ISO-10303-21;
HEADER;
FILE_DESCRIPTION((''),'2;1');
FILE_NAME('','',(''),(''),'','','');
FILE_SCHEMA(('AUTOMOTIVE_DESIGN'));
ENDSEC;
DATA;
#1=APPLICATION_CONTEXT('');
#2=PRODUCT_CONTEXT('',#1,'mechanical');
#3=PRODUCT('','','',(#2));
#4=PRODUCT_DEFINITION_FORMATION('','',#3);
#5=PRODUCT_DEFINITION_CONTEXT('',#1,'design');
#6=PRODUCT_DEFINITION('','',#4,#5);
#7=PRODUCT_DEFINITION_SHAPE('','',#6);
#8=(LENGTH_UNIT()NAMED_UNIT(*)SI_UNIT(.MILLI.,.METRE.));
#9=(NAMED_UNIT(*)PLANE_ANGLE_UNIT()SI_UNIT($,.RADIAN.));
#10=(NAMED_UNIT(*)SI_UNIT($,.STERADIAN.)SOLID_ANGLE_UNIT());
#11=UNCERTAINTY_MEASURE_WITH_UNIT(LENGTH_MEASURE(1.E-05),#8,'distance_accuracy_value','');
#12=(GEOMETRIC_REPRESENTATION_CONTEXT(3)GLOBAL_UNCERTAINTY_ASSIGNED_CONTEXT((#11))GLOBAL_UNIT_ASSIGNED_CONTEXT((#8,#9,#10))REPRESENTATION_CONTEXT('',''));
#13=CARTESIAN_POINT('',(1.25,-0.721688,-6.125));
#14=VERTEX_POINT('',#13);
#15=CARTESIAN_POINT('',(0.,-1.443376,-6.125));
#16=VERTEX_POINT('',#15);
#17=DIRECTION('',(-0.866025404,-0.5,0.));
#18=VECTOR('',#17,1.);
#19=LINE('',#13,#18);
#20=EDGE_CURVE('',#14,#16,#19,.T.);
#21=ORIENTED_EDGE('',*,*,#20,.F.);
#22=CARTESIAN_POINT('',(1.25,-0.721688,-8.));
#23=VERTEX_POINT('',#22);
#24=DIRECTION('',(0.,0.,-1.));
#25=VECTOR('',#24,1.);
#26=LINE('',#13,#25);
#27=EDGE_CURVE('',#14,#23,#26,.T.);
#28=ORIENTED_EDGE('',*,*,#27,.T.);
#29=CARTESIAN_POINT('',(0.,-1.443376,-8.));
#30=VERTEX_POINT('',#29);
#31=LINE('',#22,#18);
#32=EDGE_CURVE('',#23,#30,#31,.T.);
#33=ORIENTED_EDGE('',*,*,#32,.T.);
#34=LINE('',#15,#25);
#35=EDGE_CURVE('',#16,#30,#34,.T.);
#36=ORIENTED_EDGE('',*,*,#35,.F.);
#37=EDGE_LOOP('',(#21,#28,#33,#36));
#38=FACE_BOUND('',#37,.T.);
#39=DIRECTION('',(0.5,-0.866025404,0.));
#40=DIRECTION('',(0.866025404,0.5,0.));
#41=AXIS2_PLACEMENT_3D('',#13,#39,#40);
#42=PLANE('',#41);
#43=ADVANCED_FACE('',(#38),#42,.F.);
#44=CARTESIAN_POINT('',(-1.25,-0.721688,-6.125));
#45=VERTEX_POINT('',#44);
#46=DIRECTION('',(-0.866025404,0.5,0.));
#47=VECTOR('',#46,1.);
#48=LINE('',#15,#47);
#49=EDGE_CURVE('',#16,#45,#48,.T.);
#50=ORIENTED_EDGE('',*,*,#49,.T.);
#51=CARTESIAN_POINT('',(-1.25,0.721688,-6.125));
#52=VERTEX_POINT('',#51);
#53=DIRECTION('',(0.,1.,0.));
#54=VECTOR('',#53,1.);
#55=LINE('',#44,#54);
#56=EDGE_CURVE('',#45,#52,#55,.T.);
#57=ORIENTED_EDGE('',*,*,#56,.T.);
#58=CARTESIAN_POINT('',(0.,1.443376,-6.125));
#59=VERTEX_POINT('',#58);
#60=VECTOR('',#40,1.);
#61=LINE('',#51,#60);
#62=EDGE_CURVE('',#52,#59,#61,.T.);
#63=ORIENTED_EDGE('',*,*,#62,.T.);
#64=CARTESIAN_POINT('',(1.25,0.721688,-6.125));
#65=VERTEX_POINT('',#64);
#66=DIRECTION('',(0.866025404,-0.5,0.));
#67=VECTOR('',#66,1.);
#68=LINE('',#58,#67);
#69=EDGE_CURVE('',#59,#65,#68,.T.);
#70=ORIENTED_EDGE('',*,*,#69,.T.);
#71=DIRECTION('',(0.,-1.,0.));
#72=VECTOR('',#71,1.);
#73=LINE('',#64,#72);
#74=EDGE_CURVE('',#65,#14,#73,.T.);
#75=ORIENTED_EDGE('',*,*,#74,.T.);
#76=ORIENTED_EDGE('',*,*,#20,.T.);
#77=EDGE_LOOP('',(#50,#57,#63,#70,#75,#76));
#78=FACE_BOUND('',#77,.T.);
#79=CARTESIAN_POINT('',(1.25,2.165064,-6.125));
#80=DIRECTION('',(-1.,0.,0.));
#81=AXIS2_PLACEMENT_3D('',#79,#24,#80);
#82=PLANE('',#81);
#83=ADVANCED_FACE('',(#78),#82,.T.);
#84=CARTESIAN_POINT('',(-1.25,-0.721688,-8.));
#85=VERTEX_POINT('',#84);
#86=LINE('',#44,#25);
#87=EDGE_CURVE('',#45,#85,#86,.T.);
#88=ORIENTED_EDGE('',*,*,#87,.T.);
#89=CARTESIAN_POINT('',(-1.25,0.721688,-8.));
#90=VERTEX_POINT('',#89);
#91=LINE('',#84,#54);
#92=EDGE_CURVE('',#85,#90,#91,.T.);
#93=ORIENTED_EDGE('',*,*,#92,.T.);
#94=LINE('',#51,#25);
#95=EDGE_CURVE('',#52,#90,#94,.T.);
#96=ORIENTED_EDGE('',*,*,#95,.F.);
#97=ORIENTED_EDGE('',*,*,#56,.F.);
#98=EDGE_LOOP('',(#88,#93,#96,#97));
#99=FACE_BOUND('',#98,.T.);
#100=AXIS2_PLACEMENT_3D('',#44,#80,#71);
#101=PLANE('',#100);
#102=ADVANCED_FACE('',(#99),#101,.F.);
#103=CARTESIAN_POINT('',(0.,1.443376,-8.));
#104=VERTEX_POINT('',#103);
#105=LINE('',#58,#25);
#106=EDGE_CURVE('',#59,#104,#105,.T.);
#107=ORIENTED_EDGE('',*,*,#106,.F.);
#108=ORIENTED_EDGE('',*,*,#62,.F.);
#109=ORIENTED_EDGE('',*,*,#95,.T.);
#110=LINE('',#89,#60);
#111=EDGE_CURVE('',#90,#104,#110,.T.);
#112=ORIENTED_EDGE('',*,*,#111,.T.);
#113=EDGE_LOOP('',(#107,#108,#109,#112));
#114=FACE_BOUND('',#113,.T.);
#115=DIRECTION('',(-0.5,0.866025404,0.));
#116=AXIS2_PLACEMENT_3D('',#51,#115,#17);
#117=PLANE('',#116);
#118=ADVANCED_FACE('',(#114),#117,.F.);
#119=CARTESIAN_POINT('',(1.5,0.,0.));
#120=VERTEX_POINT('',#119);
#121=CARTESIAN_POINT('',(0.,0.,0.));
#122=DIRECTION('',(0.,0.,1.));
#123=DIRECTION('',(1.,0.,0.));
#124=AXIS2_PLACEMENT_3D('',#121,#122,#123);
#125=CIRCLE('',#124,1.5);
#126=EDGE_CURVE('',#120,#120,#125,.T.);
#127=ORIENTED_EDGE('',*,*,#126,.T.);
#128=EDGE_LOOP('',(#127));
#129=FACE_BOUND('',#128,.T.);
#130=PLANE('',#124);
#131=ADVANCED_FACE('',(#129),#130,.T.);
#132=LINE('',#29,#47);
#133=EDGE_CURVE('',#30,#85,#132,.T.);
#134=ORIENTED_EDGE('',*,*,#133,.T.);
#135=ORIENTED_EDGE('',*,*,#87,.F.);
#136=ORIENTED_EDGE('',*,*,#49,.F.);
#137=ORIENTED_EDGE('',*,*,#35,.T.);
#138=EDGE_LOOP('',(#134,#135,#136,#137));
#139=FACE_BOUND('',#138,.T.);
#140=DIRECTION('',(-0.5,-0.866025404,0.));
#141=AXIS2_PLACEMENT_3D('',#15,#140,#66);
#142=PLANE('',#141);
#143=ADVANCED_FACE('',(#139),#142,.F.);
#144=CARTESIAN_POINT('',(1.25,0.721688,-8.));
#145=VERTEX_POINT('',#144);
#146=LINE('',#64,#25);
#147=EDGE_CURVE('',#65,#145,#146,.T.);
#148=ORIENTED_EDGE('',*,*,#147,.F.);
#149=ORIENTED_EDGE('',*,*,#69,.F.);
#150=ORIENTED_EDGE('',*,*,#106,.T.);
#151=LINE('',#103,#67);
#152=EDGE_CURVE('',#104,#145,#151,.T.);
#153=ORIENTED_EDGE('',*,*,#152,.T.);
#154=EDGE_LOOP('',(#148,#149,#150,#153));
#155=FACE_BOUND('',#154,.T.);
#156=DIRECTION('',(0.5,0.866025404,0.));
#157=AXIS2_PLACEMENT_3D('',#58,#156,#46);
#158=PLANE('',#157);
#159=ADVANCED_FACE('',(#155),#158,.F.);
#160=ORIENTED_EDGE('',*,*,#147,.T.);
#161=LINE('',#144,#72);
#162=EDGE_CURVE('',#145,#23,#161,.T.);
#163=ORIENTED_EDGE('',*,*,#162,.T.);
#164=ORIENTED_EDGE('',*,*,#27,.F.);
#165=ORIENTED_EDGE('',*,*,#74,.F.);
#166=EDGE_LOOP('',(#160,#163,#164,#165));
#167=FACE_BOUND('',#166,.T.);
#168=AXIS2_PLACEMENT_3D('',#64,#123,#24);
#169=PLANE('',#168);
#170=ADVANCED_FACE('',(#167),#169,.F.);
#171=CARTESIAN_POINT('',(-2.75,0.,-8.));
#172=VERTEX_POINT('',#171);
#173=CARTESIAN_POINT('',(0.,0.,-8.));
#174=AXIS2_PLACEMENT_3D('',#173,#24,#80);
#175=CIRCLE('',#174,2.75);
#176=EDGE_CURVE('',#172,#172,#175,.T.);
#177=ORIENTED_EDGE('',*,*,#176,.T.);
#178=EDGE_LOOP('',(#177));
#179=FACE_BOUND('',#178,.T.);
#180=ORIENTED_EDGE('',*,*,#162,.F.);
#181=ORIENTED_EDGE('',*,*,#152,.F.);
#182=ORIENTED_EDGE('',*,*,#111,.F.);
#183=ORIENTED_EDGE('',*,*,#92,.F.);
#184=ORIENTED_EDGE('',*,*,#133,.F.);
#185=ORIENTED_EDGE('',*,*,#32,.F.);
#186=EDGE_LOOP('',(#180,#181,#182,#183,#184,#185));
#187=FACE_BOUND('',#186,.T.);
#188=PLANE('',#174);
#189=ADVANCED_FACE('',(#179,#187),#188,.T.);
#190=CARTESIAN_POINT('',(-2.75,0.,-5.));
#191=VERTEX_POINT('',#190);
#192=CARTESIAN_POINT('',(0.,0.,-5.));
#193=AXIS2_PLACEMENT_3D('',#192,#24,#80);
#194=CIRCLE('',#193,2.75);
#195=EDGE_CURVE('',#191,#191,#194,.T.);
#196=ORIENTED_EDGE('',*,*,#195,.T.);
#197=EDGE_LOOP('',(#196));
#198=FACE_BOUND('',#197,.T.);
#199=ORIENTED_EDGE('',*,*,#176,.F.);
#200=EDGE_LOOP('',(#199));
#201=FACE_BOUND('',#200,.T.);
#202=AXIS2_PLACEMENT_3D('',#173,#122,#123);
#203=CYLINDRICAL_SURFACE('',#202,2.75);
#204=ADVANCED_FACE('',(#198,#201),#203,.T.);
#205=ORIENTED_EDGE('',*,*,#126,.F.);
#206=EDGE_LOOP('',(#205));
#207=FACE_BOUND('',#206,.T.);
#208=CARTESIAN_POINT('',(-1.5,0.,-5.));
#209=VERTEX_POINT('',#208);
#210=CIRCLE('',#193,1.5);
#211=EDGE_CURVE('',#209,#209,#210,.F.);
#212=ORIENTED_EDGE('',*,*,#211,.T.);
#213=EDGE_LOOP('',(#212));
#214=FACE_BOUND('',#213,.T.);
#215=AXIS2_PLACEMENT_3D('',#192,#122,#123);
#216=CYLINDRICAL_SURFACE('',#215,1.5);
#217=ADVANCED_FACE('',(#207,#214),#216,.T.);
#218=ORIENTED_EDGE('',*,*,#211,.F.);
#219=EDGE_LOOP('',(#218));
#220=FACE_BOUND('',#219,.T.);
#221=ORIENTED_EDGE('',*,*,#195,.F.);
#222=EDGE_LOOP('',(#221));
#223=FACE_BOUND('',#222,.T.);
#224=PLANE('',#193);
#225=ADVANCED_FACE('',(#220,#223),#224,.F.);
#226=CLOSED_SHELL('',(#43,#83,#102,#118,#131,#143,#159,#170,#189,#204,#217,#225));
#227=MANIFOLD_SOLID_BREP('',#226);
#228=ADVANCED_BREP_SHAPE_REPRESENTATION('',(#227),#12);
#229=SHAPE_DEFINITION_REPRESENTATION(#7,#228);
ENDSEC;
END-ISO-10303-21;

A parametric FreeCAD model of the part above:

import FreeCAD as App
import Part
import Sketcher

V = App.Vector
Q = App.Units.Quantity

doc = App.newDocument("Part")
body = doc.addObject("PartDesign::Body", "Body")

# Sketch on XY plane
sketch1 = body.newObject("Sketcher::SketchObject", "Sketch")
sketch1.AttachmentSupport = (doc.getObject("XY_Plane"), [""])
sketch1.MapMode = "FlatFace"
sketch1.addGeometry(Part.Circle(V(0, 0, 0), V(0, 0, 1), 1.5), False)
sketch1.addConstraint(Sketcher.Constraint("Coincident", 0, 3, -1, 1))
sketch1.addConstraint(Sketcher.Constraint("Diameter", 0, 3.0))
pad1 = body.newObject("PartDesign::Pad", "Pad")
pad1.Profile = sketch1
pad1.Length = 5
pad1.Reversed = True

# Sketch on XY plane
sketch2 = body.newObject("Sketcher::SketchObject", "Sketch001")
sketch2.AttachmentSupport = (doc.getObject("XY_Plane"), [""])
sketch2.MapMode = "FlatFace"
sketch2.AttachmentOffset = App.Placement(V(0, 0, -5), App.Rotation())
sketch2.addGeometry(Part.Circle(V(0, 0, 0), V(0, 0, 1), 2.8), False)
sketch2.addConstraint(Sketcher.Constraint("Coincident", 0, 3, -1, 1))
sketch2.addConstraint(Sketcher.Constraint("Diameter", 0, 5.5))
pad2 = body.newObject("PartDesign::Pad", "Pad001")
pad2.Profile = sketch2
pad2.Length = 3
pad2.Reversed = True

# Sketch on XY plane
sketch3 = body.newObject("Sketcher::SketchObject", "Sketch002")
sketch3.AttachmentSupport = (doc.getObject("XY_Plane"), [""])
sketch3.MapMode = "FlatFace"
sketch3.AttachmentOffset = App.Placement(V(0, 0, -8), App.Rotation())
sketch3.addGeometry(Part.LineSegment(V(0, 1.4, 0), V(1.2, 0.7, 0)), False)
sketch3.addGeometry(Part.LineSegment(V(1.2, 0.7, 0), V(1.2, -0.7, 0)), False)
sketch3.addGeometry(Part.LineSegment(V(1.2, -0.7, 0), V(0, -1.4, 0)), False)
sketch3.addGeometry(Part.LineSegment(V(0, -1.4, 0), V(-1.2, -0.7, 0)), False)
sketch3.addGeometry(Part.LineSegment(V(-1.2, -0.7, 0), V(-1.2, 0.7, 0)), False)
sketch3.addGeometry(Part.LineSegment(V(-1.2, 0.7, 0), V(0, 1.4, 0)), False)
sketch3.addConstraint(Sketcher.Constraint("Coincident", 0, 2, 1, 1))
sketch3.addConstraint(Sketcher.Constraint("Coincident", 1, 2, 2, 1))
sketch3.addConstraint(Sketcher.Constraint("Coincident", 2, 2, 3, 1))
sketch3.addConstraint(Sketcher.Constraint("Coincident", 3, 2, 4, 1))
sketch3.addConstraint(Sketcher.Constraint("Coincident", 4, 2, 5, 1))
sketch3.addConstraint(Sketcher.Constraint("Coincident", 5, 2, 0, 1))
sketch3.addConstraint(Sketcher.Constraint("Vertical", 1))
sketch3.addConstraint(Sketcher.Constraint("Vertical", 4))
sketch3.addConstraint(Sketcher.Constraint("Symmetric", 0, 2, 3, 2, -1, 1))
sketch3.addConstraint(Sketcher.Constraint("Symmetric", 2, 2, 5, 2, -1, 1))
sketch3.addConstraint(Sketcher.Constraint("PointOnObject", 2, 2, -2))
sketch3.addConstraint(Sketcher.Constraint("Parallel", 2, 5))
sketch3.addConstraint(Sketcher.Constraint("Horizontal", 1, 2, 3, 2))
sketch3.addConstraint(Sketcher.Constraint("Angle", 0, Q("-30 deg")))
sketch3.addConstraint(Sketcher.Constraint("DistanceX", 3, 2, 1, 2, 2.5))
sketch3.addConstraint(Sketcher.Constraint("DistanceY", 1, 2, 1, 1, 1.443376))
pocket1 = body.newObject("PartDesign::Pocket", "Pocket")
pocket1.Profile = sketch3
pocket1.Length = 1.875
pocket1.Reversed = True

doc.recompute()
